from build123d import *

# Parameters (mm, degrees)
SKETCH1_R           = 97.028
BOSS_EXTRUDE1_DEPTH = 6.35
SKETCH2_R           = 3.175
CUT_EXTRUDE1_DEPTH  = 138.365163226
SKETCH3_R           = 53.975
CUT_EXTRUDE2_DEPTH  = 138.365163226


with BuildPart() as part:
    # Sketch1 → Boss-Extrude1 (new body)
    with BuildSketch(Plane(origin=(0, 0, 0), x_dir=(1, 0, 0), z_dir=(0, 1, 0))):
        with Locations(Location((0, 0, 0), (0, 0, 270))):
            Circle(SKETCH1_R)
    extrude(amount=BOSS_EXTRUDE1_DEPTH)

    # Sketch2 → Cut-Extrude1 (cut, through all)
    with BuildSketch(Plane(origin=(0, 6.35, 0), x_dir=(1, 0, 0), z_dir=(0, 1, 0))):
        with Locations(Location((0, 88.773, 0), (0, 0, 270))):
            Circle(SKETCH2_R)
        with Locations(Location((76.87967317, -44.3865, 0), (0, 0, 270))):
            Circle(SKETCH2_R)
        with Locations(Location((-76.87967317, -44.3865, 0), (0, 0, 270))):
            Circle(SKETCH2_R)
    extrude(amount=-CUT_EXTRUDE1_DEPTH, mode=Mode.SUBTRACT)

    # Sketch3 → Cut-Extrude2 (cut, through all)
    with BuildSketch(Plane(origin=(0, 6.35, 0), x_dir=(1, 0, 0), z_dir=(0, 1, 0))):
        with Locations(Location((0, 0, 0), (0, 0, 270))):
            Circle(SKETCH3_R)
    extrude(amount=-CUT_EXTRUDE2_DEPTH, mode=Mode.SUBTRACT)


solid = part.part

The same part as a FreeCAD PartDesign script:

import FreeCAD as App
import Part
import Sketcher

V = App.Vector
Q = App.Units.Quantity

doc = App.newDocument("Part")
body = doc.addObject("PartDesign::Body", "Body")

# Sketch on XZ plane
sketch1 = doc.addObject("Sketcher::SketchObject", "Sketch")
body.addObject(sketch1)
sketch1.AttachmentSupport = (doc.XZ_Plane, [""])
sketch1.MapMode = "FlatFace"
sketch1.addGeometry(Part.Circle(V(0, 0, 0), V(0, 0, 1), 97.028), False)
sketch1.addConstraint([
    Sketcher.Constraint("Coincident", 0, 3, -1, 1),
    Sketcher.Constraint("Diameter", 0, Q("7.64 in")),
])
pad1 = doc.addObject("PartDesign::Pad", "Pad")
body.addObject(pad1)
pad1.Profile = sketch1
pad1.Length = Q("0.25 in")
pad1.Reversed = True

# Sketch on XZ plane
sketch2 = doc.addObject("Sketcher::SketchObject", "Sketch001")
body.addObject(sketch2)
sketch2.AttachmentSupport = (doc.XZ_Plane, [""])
sketch2.MapMode = "FlatFace"
sketch2.AttachmentOffset = App.Placement(V(0, 0, -0.25 * 25.4), App.Rotation())
sketch2.addGeometry([
    Part.Circle(V(0, -88.773, 0), V(0, 0, 1), 3.175),
    Part.Circle(V(76.879673, 44.3865, 0), V(0, 0, 1), 3.175),
    Part.Circle(V(-76.879673, 44.3865, 0), V(0, 0, 1), 3.175),
], False)
sketch2.addConstraint([
    Sketcher.Constraint("Equal", 0, 1),
    Sketcher.Constraint("Equal", 1, 2),
    Sketcher.Constraint("Symmetric", 1, 3, 2, 3, -2),
    Sketcher.Constraint("PointOnObject", 0, 3, -2),
    Sketcher.Constraint("Diameter", 0, Q("0.25 in")),
    Sketcher.Constraint("DistanceY", 0, 3, -1, 1, Q("3.495 in")),
    Sketcher.Constraint("DistanceY", -1, 1, 1, 3, Q("1.7475 in")),
    Sketcher.Constraint("DistanceX", -1, 1, 1, 3, Q("76.879673 mm")),
])
pocket1 = doc.addObject("PartDesign::Pocket", "Pocket")
body.addObject(pocket1)
pocket1.Profile = sketch2
pocket1.Type = "ThroughAll"
pocket1.Reversed = True

# Sketch on XZ plane
sketch3 = doc.addObject("Sketcher::SketchObject", "Sketch002")
body.addObject(sketch3)
sketch3.AttachmentSupport = (doc.XZ_Plane, [""])
sketch3.MapMode = "FlatFace"
sketch3.AttachmentOffset = App.Placement(V(0, 0, -0.25 * 25.4), App.Rotation())
sketch3.addGeometry(Part.Circle(V(0, 0, 0), V(0, 0, 1), 53.975), False)
sketch3.addConstraint([
    Sketcher.Constraint("Coincident", 0, 3, -1, 1),
    Sketcher.Constraint("Diameter", 0, Q("4.25 in")),
])
pocket2 = doc.addObject("PartDesign::Pocket", "Pocket001")
body.addObject(pocket2)
pocket2.Profile = sketch3
pocket2.Type = "ThroughAll"
pocket2.Reversed = True

doc.recompute()
